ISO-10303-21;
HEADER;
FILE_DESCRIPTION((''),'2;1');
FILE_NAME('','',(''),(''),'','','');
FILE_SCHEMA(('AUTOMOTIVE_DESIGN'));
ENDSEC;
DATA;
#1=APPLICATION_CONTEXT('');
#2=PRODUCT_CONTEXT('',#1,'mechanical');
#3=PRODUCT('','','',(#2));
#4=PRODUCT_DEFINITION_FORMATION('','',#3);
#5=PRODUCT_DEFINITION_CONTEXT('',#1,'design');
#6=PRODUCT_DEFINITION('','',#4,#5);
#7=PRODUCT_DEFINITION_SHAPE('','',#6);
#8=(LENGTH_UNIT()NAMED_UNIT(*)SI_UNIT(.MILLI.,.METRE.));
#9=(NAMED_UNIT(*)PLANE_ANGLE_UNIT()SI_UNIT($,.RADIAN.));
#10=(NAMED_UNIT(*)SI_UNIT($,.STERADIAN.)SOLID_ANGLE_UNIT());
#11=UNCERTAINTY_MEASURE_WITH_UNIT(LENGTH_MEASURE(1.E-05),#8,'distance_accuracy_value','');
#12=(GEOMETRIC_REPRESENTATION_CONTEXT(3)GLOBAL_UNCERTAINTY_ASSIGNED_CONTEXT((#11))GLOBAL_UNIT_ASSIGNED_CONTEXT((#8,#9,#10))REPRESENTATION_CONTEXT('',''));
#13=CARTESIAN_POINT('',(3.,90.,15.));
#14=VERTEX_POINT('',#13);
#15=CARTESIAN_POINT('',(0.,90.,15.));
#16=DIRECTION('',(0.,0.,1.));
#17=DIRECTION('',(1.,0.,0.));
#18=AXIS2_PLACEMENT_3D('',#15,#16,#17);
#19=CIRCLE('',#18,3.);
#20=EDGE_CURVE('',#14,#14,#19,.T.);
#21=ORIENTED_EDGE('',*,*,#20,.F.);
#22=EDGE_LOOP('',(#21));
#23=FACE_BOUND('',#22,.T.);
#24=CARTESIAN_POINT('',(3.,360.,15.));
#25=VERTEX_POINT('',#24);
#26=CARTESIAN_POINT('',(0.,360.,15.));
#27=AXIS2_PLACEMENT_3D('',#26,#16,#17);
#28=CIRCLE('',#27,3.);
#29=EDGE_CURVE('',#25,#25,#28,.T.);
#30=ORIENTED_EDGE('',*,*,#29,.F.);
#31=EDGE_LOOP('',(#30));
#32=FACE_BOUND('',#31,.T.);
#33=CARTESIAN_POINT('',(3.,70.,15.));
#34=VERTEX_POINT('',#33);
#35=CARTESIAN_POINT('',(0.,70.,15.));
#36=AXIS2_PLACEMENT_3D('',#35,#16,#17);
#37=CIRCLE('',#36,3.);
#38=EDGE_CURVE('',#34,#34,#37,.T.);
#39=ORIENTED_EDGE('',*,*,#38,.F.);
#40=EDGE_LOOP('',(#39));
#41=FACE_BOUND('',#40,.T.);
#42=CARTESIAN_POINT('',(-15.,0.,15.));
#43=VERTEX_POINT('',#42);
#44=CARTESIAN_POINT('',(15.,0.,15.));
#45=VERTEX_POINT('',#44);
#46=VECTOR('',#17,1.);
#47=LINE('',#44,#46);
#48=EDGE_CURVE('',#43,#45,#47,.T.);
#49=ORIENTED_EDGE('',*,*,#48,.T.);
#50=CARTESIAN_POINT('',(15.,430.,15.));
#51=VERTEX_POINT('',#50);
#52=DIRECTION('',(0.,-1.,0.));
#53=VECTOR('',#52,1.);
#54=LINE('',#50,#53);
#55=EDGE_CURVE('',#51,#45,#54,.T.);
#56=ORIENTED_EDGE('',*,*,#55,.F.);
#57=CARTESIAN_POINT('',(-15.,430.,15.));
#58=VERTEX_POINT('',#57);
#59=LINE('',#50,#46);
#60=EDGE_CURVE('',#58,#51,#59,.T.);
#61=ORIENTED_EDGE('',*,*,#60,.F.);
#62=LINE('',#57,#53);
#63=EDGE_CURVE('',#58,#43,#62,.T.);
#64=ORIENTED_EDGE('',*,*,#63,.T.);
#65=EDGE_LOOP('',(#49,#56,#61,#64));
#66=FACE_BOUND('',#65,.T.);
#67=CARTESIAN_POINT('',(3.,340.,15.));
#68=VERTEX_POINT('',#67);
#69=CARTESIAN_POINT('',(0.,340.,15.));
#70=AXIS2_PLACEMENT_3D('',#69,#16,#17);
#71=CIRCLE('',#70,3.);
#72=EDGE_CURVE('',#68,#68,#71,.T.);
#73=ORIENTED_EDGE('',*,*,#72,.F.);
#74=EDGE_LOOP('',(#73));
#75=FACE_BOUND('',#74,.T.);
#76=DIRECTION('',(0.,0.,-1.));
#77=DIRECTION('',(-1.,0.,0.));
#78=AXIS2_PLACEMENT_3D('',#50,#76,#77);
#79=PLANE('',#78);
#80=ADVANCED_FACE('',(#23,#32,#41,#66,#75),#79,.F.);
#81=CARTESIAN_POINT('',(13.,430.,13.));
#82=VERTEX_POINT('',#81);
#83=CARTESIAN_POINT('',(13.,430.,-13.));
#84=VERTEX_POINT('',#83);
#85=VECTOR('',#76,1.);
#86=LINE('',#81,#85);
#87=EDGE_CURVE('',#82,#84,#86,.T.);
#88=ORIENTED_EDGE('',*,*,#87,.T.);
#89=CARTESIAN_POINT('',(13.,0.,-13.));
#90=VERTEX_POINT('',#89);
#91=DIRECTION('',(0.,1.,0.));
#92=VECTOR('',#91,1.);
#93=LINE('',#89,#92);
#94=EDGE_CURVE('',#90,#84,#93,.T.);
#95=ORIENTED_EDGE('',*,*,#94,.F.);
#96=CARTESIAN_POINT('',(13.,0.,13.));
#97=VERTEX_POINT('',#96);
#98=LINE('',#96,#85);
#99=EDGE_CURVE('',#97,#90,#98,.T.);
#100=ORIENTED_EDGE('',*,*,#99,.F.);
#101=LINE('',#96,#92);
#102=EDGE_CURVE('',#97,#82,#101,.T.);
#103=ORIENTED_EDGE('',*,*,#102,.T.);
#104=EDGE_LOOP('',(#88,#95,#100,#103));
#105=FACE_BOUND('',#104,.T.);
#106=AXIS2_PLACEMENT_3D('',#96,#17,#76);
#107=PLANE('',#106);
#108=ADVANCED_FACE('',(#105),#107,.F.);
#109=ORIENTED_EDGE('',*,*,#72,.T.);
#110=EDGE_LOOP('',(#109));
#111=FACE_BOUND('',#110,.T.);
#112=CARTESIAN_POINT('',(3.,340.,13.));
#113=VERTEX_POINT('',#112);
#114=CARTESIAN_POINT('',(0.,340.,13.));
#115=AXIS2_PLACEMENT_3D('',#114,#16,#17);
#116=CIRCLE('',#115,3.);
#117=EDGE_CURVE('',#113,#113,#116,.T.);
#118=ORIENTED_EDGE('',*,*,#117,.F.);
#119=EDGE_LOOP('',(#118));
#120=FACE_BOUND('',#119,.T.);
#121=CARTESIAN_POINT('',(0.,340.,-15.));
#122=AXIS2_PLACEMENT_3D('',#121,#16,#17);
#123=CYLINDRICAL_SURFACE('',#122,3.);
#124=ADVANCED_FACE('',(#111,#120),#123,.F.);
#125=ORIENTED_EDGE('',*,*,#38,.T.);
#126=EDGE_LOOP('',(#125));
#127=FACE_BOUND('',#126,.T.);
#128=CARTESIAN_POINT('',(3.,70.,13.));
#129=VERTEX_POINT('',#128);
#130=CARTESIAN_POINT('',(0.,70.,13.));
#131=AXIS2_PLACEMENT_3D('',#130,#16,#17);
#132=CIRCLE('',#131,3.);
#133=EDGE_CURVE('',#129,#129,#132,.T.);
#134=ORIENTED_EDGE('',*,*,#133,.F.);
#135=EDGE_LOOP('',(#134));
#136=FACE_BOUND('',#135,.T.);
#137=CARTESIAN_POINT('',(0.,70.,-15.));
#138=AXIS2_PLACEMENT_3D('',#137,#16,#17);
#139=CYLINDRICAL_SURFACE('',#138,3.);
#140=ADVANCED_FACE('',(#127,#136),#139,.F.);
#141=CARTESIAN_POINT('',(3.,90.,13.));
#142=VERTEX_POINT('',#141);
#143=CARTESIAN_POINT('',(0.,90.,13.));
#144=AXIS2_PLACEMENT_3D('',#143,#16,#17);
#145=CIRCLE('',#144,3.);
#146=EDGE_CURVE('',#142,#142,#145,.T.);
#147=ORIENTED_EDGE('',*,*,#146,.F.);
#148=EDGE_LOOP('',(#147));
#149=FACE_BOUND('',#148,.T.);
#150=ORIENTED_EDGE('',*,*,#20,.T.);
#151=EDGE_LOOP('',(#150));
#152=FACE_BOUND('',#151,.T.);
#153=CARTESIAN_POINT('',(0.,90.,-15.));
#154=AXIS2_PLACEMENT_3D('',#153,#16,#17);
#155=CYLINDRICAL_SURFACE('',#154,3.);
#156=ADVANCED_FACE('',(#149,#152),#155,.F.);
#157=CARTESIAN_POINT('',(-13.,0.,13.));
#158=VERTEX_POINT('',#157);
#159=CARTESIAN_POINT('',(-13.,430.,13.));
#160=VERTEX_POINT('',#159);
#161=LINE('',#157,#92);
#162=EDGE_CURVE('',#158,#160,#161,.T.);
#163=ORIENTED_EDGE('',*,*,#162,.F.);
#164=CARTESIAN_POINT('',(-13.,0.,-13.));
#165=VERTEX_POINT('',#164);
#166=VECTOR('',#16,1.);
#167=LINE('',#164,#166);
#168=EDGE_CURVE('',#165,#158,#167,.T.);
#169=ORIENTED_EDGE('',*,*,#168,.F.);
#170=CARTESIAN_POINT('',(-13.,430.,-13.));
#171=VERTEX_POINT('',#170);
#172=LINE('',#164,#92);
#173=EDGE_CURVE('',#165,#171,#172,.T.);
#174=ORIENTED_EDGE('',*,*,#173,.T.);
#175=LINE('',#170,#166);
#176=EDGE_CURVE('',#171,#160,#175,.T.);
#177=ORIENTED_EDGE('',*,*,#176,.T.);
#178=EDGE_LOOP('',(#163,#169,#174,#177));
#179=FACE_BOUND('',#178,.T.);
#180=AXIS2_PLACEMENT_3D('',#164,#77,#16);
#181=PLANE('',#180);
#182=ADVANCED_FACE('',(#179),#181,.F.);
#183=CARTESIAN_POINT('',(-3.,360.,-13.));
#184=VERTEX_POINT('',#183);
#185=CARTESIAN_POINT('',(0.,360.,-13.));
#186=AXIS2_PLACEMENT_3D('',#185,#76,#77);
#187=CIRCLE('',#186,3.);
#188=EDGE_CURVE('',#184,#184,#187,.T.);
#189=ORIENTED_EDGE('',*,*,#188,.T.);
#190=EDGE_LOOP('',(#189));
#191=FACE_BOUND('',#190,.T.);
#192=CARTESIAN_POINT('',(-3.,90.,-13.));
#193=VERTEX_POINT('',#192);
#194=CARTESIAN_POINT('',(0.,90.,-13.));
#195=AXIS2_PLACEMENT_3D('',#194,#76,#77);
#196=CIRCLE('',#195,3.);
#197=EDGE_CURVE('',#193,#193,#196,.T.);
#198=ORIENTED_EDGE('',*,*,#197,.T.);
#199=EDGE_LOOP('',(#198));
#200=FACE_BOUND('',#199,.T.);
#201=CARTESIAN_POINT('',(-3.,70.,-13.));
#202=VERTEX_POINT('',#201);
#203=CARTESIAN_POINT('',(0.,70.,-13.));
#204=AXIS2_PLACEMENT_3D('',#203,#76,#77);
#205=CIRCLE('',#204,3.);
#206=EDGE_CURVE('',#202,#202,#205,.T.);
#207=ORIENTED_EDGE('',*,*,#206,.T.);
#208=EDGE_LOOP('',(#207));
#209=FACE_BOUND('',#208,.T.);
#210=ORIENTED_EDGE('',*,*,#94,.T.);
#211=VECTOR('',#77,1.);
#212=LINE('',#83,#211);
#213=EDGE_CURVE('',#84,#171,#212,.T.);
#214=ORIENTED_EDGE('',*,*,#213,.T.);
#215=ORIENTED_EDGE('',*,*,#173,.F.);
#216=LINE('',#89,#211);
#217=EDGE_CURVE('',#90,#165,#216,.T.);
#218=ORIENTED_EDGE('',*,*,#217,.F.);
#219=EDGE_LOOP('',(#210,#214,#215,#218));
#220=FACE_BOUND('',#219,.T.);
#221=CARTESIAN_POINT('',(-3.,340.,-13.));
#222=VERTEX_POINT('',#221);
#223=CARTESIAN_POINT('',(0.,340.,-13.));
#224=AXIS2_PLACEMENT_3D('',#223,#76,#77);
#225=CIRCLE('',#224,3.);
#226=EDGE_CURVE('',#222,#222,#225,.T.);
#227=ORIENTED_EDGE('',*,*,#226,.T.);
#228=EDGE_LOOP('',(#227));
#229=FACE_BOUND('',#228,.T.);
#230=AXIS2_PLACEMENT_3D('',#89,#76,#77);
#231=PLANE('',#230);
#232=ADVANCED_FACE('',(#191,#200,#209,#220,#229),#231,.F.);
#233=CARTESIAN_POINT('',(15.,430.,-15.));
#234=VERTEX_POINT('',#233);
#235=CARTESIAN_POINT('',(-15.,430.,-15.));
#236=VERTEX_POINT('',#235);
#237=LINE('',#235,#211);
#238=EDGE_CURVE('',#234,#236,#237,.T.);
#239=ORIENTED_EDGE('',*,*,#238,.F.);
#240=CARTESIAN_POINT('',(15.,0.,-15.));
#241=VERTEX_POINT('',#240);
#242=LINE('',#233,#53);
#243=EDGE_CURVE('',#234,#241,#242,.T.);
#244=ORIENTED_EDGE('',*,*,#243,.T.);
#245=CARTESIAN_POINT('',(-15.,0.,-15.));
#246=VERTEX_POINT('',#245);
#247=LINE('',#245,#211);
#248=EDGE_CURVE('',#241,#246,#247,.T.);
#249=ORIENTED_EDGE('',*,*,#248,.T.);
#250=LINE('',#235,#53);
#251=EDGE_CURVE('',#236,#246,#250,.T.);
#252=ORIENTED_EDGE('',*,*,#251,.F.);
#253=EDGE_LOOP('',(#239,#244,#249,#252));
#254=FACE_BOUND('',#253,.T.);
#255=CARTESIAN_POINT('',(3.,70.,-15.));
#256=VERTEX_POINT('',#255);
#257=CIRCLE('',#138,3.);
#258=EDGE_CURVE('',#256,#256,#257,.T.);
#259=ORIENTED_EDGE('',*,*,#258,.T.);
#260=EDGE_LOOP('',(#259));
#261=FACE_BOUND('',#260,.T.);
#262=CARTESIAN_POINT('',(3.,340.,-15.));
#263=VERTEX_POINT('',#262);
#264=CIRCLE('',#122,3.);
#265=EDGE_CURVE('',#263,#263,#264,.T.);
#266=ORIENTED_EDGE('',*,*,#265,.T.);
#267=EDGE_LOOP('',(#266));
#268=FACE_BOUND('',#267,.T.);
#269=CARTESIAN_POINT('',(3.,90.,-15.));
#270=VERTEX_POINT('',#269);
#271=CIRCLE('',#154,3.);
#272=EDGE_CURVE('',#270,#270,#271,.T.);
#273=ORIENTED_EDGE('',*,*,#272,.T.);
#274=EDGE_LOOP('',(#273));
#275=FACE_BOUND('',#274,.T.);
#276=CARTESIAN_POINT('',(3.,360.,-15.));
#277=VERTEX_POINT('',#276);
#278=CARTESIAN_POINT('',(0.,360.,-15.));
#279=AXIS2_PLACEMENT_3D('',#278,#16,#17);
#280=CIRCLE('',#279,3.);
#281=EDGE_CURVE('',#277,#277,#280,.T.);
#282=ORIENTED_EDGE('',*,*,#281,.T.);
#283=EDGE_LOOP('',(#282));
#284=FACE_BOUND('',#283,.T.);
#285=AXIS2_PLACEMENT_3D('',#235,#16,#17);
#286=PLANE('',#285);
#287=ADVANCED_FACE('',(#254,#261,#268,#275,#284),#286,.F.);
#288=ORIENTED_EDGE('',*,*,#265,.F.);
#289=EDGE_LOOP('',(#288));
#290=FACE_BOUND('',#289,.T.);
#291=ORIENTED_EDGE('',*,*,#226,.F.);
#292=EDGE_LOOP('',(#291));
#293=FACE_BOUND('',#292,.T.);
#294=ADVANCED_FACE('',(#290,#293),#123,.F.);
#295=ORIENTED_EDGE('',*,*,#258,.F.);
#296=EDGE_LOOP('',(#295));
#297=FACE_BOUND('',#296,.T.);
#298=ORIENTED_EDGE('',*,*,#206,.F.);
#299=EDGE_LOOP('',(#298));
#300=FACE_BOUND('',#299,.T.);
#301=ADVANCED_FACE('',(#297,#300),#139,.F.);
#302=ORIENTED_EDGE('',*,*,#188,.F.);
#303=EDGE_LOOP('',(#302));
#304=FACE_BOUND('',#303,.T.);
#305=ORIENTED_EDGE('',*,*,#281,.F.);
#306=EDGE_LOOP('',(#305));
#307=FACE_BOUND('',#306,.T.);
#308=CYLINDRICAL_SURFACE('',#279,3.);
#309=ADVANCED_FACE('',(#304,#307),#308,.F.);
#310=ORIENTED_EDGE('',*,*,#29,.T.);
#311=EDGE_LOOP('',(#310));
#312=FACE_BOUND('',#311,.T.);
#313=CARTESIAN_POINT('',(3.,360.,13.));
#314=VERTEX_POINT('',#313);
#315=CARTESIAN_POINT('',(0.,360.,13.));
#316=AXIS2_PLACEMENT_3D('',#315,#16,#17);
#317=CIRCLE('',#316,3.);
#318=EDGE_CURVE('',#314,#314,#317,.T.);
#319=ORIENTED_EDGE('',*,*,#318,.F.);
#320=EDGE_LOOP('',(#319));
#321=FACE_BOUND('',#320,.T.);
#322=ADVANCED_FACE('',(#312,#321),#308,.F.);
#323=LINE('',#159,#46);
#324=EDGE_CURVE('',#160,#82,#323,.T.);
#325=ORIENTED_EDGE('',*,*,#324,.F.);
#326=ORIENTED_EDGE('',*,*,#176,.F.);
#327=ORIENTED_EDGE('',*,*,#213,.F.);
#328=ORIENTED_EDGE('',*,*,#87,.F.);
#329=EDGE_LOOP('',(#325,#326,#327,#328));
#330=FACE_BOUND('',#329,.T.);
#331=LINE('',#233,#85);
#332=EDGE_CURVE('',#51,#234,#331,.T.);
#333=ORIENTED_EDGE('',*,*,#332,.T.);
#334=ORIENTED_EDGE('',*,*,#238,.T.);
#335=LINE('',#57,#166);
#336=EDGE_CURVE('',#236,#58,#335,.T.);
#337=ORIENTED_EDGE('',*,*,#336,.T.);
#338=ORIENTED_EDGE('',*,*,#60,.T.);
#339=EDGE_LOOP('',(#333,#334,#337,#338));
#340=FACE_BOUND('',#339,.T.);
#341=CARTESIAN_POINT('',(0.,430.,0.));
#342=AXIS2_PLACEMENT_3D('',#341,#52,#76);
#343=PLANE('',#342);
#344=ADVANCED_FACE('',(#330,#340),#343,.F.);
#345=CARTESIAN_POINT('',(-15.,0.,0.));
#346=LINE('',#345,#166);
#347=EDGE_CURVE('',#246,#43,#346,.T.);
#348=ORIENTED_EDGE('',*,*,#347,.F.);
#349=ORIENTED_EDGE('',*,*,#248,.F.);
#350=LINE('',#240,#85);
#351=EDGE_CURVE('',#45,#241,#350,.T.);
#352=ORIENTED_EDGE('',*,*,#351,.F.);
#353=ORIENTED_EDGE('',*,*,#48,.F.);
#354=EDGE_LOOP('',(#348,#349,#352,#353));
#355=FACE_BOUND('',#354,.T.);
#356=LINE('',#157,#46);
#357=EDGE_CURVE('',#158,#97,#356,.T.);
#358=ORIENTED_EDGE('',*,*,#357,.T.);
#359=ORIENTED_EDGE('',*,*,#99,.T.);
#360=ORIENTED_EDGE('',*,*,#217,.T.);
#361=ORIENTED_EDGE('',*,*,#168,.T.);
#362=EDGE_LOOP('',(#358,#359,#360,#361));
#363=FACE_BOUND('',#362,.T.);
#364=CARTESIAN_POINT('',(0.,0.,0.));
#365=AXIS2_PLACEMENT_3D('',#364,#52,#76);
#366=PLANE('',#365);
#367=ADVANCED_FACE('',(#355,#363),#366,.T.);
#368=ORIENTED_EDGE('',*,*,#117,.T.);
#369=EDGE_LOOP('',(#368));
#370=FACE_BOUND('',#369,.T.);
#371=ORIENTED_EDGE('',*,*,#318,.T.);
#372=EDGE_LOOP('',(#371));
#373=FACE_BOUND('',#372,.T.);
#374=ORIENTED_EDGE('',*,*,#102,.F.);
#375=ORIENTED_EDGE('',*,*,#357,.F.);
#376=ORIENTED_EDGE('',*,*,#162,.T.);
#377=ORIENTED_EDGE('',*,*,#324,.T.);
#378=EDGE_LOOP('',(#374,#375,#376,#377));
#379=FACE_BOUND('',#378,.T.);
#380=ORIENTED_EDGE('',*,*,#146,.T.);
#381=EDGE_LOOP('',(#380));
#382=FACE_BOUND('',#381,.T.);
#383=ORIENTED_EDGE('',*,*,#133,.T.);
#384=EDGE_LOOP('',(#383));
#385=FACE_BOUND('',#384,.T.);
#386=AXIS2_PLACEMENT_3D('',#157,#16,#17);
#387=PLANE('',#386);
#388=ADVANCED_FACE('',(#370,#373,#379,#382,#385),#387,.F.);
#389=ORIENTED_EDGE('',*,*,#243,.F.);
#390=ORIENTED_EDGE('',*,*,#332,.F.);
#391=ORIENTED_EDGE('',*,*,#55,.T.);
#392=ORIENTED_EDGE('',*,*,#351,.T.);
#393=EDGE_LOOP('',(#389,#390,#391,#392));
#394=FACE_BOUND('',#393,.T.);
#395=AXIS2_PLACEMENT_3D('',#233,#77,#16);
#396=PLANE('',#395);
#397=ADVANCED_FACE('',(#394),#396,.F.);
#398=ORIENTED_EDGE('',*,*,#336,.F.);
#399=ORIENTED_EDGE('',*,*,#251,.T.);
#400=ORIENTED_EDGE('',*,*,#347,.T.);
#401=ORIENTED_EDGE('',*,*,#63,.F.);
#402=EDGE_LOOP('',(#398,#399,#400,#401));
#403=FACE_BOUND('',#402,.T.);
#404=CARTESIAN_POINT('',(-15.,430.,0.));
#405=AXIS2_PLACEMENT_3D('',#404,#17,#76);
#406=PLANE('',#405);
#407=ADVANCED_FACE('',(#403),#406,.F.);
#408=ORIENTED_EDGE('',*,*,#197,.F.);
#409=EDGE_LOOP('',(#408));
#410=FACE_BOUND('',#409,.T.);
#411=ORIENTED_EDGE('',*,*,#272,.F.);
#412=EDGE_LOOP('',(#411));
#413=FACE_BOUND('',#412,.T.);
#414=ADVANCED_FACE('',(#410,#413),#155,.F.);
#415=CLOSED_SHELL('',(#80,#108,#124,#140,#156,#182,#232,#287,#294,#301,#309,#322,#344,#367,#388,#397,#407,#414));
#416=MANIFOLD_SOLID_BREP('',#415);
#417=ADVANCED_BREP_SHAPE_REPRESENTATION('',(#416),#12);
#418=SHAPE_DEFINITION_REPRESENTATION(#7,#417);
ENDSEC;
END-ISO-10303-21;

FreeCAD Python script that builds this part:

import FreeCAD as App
import Part
import Sketcher

V = App.Vector

doc = App.newDocument("Part")
body = doc.addObject("PartDesign::Body", "Body")

# Sketch on XZ plane
sketch1 = body.newObject("Sketcher::SketchObject", "Sketch")
sketch1.AttachmentSupport = (doc.getObject("XZ_Plane"), [""])
sketch1.MapMode = "FlatFace"
sketch1.addGeometry([
    Part.LineSegment(V(-15, -15, 0), V(-15, 15, 0)),
    Part.LineSegment(V(-15, 15, 0), V(15, 15, 0)),
    Part.LineSegment(V(15, 15, 0), V(15, -15, 0)),
    Part.LineSegment(V(15, -15, 0), V(-15, -15, 0)),
], False)
sketch1.addConstraint([
    Sketcher.Constraint("Coincident", 0, 2, 1, 1),
    Sketcher.Constraint("Coincident", 1, 2, 2, 1),
    Sketcher.Constraint("Coincident", 2, 2, 3, 1),
    Sketcher.Constraint("Coincident", 3, 2, 0, 1),
    Sketcher.Constraint("Vertical", 0),
    Sketcher.Constraint("Horizontal", 1),
    Sketcher.Constraint("Vertical", 2),
    Sketcher.Constraint("Horizontal", 3),
    Sketcher.Constraint("Symmetric", 0, 2, 2, 2, -1, 1),
    Sketcher.Constraint("Equal", 3, 0),
    Sketcher.Constraint("DistanceX", 1, 1, 1, 2, 30.0),
])
pad1 = body.newObject("PartDesign::Pad", "Pad")
pad1.Profile = sketch1
pad1.Length = 430
pad1.Reversed = True

# Sketch on XZ plane
sketch2 = body.newObject("Sketcher::SketchObject", "Sketch001")
sketch2.AttachmentSupport = (doc.getObject("XZ_Plane"), [""])
sketch2.MapMode = "FlatFace"
sketch2.AttachmentOffset = App.Placement(V(0, 0, -430), App.Rotation())
sketch2.addGeometry([
    Part.LineSegment(V(-13, -13, 0), V(-13, 13, 0)),
    Part.LineSegment(V(-13, 13, 0), V(13, 13, 0)),
    Part.LineSegment(V(13, 13, 0), V(13, -13, 0)),
    Part.LineSegment(V(13, -13, 0), V(-13, -13, 0)),
], False)
sketch2.addConstraint([
    Sketcher.Constraint("Coincident", 0, 2, 1, 1),
    Sketcher.Constraint("Coincident", 1, 2, 2, 1),
    Sketcher.Constraint("Coincident", 2, 2, 3, 1),
    Sketcher.Constraint("Coincident", 3, 2, 0, 1),
    Sketcher.Constraint("Vertical", 0),
    Sketcher.Constraint("Horizontal", 1),
    Sketcher.Constraint("Vertical", 2),
    Sketcher.Constraint("Horizontal", 3),
    Sketcher.Constraint("Symmetric", 0, 2, 2, 2, -1, 1),
    Sketcher.Constraint("Equal", 3, 0),
    Sketcher.Constraint("DistanceX", 1, 1, 1, 2, 26.0),
])
pocket1 = body.newObject("PartDesign::Pocket", "Pocket")
pocket1.Profile = sketch2
pocket1.Length = 430
pocket1.Reversed = True

# Sketch on XY plane
sketch3 = body.newObject("Sketcher::SketchObject", "Sketch002")
sketch3.AttachmentSupport = (doc.getObject("XY_Plane"), [""])
sketch3.MapMode = "FlatFace"
sketch3.AttachmentOffset = App.Placement(V(0, 0, 15), App.Rotation())
sketch3.addGeometry([
    Part.Circle(V(0, 360, 0), V(0, 0, 1), 3),
    Part.Circle(V(0, 340, 0), V(0, 0, 1), 3),
    Part.Circle(V(0, 90, 0), V(0, 0, 1), 3),
    Part.Circle(V(0, 70, 0), V(0, 0, 1), 3),
], False)
sketch3.addConstraint([
    Sketcher.Constraint("Equal", 0, 1),
    Sketcher.Constraint("Equal", 1, 2),
    Sketcher.Constraint("Equal", 2, 3),
    Sketcher.Constraint("PointOnObject", 0, 3, -2),
    Sketcher.Constraint("PointOnObject", 1, 3, -2),
    Sketcher.Constraint("PointOnObject", 2, 3, -2),
    Sketcher.Constraint("PointOnObject", 3, 3, -2),
    Sketcher.Constraint("Diameter", 0, 6.0),
    Sketcher.Constraint("DistanceY", -1, 1, 0, 3, 360.0),
    Sketcher.Constraint("DistanceY", -1, 1, 1, 3, 340.0),
    Sketcher.Constraint("DistanceY", -1, 1, 2, 3, 90.0),
    Sketcher.Constraint("DistanceY", -1, 1, 3, 3, 70.0),
])
pocket2 = body.newObject("PartDesign::Pocket", "Pocket001")
pocket2.Profile = sketch3
pocket2.Length = 30

doc.recompute()
